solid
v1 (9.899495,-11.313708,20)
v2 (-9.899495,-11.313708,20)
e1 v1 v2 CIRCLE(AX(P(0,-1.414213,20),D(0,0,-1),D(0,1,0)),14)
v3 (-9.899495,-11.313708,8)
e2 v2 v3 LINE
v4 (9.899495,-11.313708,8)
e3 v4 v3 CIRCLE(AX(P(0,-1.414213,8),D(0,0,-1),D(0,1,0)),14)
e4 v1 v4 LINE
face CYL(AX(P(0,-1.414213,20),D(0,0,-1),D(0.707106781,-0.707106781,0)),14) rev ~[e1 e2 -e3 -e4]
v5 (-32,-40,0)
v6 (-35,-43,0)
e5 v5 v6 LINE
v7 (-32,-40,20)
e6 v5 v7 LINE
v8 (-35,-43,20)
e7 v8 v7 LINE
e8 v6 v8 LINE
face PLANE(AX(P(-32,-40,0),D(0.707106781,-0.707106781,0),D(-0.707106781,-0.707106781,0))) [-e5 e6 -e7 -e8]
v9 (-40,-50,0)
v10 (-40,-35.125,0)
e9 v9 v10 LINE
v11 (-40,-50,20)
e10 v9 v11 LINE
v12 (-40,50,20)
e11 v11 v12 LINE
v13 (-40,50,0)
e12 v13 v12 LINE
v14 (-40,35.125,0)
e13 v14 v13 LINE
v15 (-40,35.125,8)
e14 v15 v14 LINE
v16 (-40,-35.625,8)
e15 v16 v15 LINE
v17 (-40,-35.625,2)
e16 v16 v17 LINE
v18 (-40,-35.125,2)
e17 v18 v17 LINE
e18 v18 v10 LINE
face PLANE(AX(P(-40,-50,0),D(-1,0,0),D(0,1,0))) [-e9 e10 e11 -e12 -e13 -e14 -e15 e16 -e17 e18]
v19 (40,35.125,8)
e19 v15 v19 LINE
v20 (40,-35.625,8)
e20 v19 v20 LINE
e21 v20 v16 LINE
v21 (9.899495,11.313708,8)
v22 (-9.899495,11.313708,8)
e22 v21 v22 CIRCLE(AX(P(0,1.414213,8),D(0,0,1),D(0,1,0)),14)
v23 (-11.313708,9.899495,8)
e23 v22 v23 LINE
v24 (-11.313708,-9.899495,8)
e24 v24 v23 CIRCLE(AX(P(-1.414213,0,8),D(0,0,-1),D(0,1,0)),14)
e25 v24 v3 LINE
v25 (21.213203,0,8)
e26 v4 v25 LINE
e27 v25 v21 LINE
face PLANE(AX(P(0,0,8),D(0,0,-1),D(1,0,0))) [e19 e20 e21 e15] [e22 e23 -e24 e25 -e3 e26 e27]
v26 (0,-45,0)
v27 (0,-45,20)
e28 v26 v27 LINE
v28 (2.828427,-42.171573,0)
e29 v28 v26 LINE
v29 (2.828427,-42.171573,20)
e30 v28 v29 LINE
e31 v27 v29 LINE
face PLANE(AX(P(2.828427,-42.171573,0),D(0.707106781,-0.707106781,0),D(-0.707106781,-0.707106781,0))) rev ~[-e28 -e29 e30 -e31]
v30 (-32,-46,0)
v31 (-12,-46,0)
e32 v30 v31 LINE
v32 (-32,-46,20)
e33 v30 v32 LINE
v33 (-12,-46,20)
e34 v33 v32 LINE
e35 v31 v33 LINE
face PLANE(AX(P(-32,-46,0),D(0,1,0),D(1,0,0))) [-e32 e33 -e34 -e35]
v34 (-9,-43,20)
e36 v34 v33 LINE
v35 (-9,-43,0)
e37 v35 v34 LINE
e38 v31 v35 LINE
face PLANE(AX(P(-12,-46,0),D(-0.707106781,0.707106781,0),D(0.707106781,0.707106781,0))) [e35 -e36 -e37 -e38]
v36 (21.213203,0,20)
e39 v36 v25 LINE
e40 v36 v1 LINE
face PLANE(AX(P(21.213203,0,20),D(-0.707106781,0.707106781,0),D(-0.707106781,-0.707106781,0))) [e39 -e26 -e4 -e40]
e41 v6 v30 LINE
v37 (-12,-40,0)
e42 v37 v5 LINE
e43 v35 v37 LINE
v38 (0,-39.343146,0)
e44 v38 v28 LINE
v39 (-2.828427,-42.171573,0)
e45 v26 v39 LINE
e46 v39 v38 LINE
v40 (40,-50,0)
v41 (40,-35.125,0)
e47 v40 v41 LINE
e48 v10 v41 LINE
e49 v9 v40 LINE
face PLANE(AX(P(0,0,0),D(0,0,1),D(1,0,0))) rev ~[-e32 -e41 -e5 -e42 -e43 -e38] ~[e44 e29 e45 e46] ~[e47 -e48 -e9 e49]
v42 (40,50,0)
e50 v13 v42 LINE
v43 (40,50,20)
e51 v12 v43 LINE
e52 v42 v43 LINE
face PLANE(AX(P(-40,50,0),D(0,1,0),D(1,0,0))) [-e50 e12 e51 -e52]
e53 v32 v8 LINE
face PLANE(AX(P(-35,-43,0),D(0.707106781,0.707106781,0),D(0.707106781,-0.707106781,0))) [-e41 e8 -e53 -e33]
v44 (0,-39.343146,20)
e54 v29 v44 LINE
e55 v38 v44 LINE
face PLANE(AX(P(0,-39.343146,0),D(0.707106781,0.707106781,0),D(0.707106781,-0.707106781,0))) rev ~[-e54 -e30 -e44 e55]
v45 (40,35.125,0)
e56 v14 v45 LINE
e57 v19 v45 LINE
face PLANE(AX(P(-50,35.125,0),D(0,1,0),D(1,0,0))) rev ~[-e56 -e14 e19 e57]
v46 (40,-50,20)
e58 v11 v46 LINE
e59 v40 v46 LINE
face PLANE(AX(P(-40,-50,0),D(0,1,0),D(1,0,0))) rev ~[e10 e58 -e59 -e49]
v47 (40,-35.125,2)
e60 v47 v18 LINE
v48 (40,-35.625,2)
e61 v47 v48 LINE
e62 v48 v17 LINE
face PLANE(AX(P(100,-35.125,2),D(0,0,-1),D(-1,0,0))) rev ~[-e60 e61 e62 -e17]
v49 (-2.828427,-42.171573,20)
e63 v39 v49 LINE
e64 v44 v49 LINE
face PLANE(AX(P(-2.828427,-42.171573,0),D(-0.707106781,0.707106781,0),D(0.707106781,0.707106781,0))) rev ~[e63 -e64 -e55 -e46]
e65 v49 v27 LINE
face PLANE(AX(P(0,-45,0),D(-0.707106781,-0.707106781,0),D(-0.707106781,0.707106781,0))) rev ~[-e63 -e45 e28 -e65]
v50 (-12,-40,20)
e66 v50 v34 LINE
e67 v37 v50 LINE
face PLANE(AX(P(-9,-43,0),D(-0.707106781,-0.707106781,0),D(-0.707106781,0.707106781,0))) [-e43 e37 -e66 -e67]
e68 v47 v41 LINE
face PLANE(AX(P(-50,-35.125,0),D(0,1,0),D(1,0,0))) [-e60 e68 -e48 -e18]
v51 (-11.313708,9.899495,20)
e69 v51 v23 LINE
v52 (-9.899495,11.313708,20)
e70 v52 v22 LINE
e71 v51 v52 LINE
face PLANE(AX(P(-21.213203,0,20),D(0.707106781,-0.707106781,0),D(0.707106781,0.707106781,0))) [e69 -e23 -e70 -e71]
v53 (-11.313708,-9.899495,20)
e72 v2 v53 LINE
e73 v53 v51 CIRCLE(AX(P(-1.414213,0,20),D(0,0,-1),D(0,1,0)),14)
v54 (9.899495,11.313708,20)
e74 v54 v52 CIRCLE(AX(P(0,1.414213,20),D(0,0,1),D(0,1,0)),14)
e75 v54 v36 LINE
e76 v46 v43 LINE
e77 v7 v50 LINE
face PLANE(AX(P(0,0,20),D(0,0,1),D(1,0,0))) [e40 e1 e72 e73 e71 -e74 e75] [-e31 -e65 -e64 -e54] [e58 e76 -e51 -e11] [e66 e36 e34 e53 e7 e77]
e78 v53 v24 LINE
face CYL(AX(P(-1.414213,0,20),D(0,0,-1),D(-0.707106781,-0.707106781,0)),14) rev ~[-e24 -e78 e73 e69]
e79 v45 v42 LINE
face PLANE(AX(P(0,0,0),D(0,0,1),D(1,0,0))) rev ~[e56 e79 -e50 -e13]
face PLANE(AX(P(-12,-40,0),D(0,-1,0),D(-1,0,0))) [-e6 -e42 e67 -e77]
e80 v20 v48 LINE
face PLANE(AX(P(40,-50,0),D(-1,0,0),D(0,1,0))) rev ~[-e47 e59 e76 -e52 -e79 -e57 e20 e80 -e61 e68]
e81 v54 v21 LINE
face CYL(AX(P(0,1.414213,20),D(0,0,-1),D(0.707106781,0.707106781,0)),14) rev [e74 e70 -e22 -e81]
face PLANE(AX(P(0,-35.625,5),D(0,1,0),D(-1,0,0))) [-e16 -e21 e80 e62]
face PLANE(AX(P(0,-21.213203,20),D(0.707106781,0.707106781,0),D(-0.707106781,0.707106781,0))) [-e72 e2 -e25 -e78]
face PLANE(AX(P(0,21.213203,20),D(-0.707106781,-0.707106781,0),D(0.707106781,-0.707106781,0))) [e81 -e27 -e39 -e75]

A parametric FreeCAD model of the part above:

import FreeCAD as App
import Part
import Sketcher


def edges_at(feature, points):
    """Names of the edges that pass closest to the given points."""
    edges = feature.Shape.Edges
    near = lambda p: min(range(len(edges)), key=lambda i: edges[i].distToShape(Part.Vertex(*p))[0])
    return sorted({f"Edge{near(p) + 1}" for p in points})


def add_polygon(sketch, points):
    """Adds a closed chain of lines whose ends are joined by coincident constraints."""
    first, n = sketch.GeometryCount, len(points)
    for a, b in zip(points, points[1:] + points[:1]):
        sketch.addGeometry(Part.LineSegment(App.Vector(*a, 0), App.Vector(*b, 0)), False)
    for i in range(n):
        sketch.addConstraint(Sketcher.Constraint("Coincident", first + i, 2, first + (i + 1) % n, 1))

doc = App.newDocument("Part")
params = doc.addObject("Spreadsheet::Sheet", "Params")
for row, (alias, value) in enumerate([
    ("sketch1_width", "80 mm"),
    ("sketch1_height", "100 mm"),
    ("pad1_length", "20 mm"),
    ("sketch2_width", "100 mm"),
    ("sketch2_height", "70.25 mm"),
    ("pocket1_length", "8 mm"),
    ("sketch3_width", "20 mm"),
    ("sketch3_length", "4 mm"),
    ("sketch4_length", "29.999999 mm"),
    ("fillet_radius", "14 mm"),
    ("sketch5_width", "200 mm"),
    ("sketch5_height", "6 mm"),
    ("pocket4_length", "0.5 mm"),
], start=1):
    params.set(f"A{row}", alias)
    params.set(f"B{row}", "=" + value)
    params.setAlias(f"B{row}", alias)

body = doc.addObject("PartDesign::Body", "Body")

# Sketch on XY plane
sketch1 = body.newObject("Sketcher::SketchObject", "Sketch")
sketch1.AttachmentSupport = (doc.getObject("XY_Plane"), [""])
sketch1.MapMode = "FlatFace"
add_polygon(sketch1, [(-40, 50), (-40, -50), (40, -50), (40, 50)])  # lines 0-3
sketch1.addConstraint([
    Sketcher.Constraint("Vertical", 0),
    Sketcher.Constraint("Horizontal", 1),
    Sketcher.Constraint("Vertical", 2),
    Sketcher.Constraint("Horizontal", 3),
    Sketcher.Constraint("Symmetric", 0, 2, 2, 2, -1, 1),
    Sketcher.Constraint("DistanceX", 1, 1, 1, 2, 80.0),
    Sketcher.Constraint("DistanceY", 0, 2, 0, 1, 100.0),
])
sketch1.setExpression("Constraints[9]", "Params.sketch1_width")
sketch1.setExpression("Constraints[10]", "Params.sketch1_height")
pad1 = body.newObject("PartDesign::Pad", "Pad")
pad1.Profile = sketch1
pad1.setExpression("Length", "Params.pad1_length")

# Sketch on XY plane
sketch2 = body.newObject("Sketcher::SketchObject", "Sketch001")
sketch2.AttachmentSupport = (doc.getObject("XY_Plane"), [""])
sketch2.MapMode = "FlatFace"
add_polygon(sketch2, [(-50, -35), (-50, 35), (50, 35), (50, -35)])  # lines 0-3
sketch2.addConstraint([
    Sketcher.Constraint("Vertical", 0),
    Sketcher.Constraint("Horizontal", 1),
    Sketcher.Constraint("Vertical", 2),
    Sketcher.Constraint("Horizontal", 3),
    Sketcher.Constraint("Symmetric", 0, 2, 2, 2, -1, 1),
    Sketcher.Constraint("DistanceX", 1, 1, 1, 2, 100.0),
    Sketcher.Constraint("DistanceY", 0, 1, 0, 2, 70.25),
])
sketch2.setExpression("Constraints[9]", "Params.sketch2_width")
sketch2.setExpression("Constraints[10]", "Params.sketch2_height")
pocket1 = body.newObject("PartDesign::Pocket", "Pocket")
pocket1.Profile = sketch2
pocket1.setExpression("Length", "Params.pocket1_length")
pocket1.Reversed = True

# Sketch on XY plane
sketch3 = body.newObject("Sketcher::SketchObject", "Sketch002")
sketch3.AttachmentSupport = (doc.getObject("XY_Plane"), [""])
sketch3.MapMode = "FlatFace"
add_polygon(sketch3, [(-12, -46), (-32, -46), (-35, -43), (-32, -40), (-12, -40), (-9, -43)])  # lines 0-5
add_polygon(sketch3, [(0, -45), (-2.8, -42.2), (0, -39.3), (2.8, -42.2)])  # lines 6-9
sketch3.addConstraint([
    Sketcher.Constraint("Horizontal", 0),
    Sketcher.Constraint("Horizontal", 3),
    Sketcher.Constraint("Symmetric", 6, 2, 8, 2, -2),
    Sketcher.Constraint("PointOnObject", 7, 2, -2),
    Sketcher.Constraint("PointOnObject", 9, 2, -2),
    Sketcher.Constraint("Perpendicular", 1, 2),
    Sketcher.Constraint("Perpendicular", 2, 4),
    Sketcher.Constraint("Perpendicular", 4, 5),
    Sketcher.Constraint("Perpendicular", 5, 6),
    Sketcher.Constraint("Perpendicular", 6, 7),
    Sketcher.Constraint("Perpendicular", 7, 8),
    Sketcher.Constraint("Horizontal", 1, 2, 4, 2),
    Sketcher.Constraint("Vertical", 0, 2, 2, 2),
    Sketcher.Constraint("DistanceX", 0, 2, 0, 1, 20.0),
    Sketcher.Constraint("Distance", 6, 4.0),
    Sketcher.Constraint("DistanceX", 0, 2, -1, 1, 32.0),
    Sketcher.Constraint("DistanceY", 0, 2, -1, 1, 46.0),
    Sketcher.Constraint("DistanceX", 1, 2, -1, 1, 35.0),
    Sketcher.Constraint("DistanceY", 9, 2, -1, 1, 45.0),
])
sketch3.setExpression("Constraints[23]", "Params.sketch3_width")
sketch3.setExpression("Constraints[24]", "Params.sketch3_length")
pocket2 = body.newObject("PartDesign::Pocket", "Pocket001")
pocket2.Profile = sketch3
pocket2.Type = "ThroughAll"
pocket2.Reversed = True

# Sketch on XY plane
sketch4 = body.newObject("Sketcher::SketchObject", "Sketch003")
sketch4.AttachmentSupport = (doc.getObject("XY_Plane"), [""])
sketch4.MapMode = "FlatFace"
sketch4.AttachmentOffset = App.Placement(App.Vector(0, 0, 20), App.Rotation())
add_polygon(sketch4, [(0, 21), (-21, 0), (0, -21), (21, 0)])  # lines 0-3
sketch4.addConstraint([
    Sketcher.Constraint("Symmetric", 0, 2, 2, 2, -1, 1),
    Sketcher.Constraint("Symmetric", 1, 2, 3, 2, -1, 1),
    Sketcher.Constraint("PointOnObject", 0, 2, -1),
    Sketcher.Constraint("PointOnObject", 1, 2, -2),
    Sketcher.Constraint("Perpendicular", 0, 1),
    Sketcher.Constraint("Distance", 0, 29.999999),
])
sketch4.setExpression("Constraints[9]", "Params.sketch4_length")
pocket3 = body.newObject("PartDesign::Pocket", "Pocket002")
pocket3.Profile = sketch4
pocket3.Type = "ThroughAll"
doc.recompute()

fillet = body.newObject("PartDesign::Fillet", "Fillet")
fillet.Base = (pocket3, edges_at(pocket3, [(0, 21.213, 14), (-21.213, 0, 14), (0, -21.213, 14)]))
fillet.setExpression("Radius", "Params.fillet_radius")

# Sketch on XZ plane
sketch5 = body.newObject("Sketcher::SketchObject", "Sketch004")
sketch5.AttachmentSupport = (doc.getObject("XZ_Plane"), [""])
sketch5.MapMode = "FlatFace"
sketch5.AttachmentOffset = App.Placement(App.Vector(0, 0, 35.125), App.Rotation())
add_polygon(sketch5, [(100, 8), (100, 2), (-100, 2), (-100, 8)])  # lines 0-3
sketch5.addConstraint([
    Sketcher.Constraint("Vertical", 0),
    Sketcher.Constraint("Horizontal", 1),
    Sketcher.Constraint("Vertical", 2),
    Sketcher.Constraint("Horizontal", 3),
    Sketcher.Constraint("DistanceX", 1, 2, 1, 1, 200.0),
    Sketcher.Constraint("DistanceY", 0, 2, 0, 1, 6.0),
    Sketcher.Constraint("DistanceX", -1, 1, 0, 2, 100.0),
    Sketcher.Constraint("DistanceY", -1, 1, 0, 2, 2.0),
])
sketch5.setExpression("Constraints[8]", "Params.sketch5_width")
sketch5.setExpression("Constraints[9]", "Params.sketch5_height")
pocket4 = body.newObject("PartDesign::Pocket", "Pocket003")
pocket4.Profile = sketch5
pocket4.setExpression("Length", "Params.pocket4_length")
pocket4.Reversed = True

doc.recompute()
